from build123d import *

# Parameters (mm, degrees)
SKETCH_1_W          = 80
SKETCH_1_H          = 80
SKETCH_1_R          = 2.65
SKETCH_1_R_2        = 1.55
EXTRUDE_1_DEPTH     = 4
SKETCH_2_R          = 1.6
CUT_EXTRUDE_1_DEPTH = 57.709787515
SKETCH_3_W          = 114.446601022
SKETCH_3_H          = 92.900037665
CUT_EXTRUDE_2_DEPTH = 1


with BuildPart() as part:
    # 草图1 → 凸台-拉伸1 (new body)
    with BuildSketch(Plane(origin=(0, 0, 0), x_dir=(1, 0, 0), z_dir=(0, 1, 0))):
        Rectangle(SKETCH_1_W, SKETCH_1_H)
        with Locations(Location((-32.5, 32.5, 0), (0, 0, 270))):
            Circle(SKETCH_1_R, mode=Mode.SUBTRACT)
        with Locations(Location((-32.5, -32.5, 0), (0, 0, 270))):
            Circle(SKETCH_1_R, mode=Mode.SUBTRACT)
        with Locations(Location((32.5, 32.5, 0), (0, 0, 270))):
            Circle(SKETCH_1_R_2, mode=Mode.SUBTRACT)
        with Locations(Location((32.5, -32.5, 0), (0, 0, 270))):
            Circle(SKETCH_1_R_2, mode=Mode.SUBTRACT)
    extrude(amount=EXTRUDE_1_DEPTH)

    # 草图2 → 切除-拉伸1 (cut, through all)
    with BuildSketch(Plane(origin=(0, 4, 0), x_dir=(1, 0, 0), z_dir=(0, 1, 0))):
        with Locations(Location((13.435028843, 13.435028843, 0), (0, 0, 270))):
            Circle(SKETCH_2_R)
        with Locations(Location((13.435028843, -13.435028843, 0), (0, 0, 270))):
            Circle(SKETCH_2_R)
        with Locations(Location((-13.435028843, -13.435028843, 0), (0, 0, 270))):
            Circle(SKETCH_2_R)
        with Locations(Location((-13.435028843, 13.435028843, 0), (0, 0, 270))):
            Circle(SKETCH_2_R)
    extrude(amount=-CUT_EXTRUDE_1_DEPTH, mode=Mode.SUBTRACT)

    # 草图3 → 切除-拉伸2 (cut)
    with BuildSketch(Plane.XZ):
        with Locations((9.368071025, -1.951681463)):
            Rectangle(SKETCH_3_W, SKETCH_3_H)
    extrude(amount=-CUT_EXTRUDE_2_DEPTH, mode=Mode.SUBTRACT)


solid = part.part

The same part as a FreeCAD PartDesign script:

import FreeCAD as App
import Part
import Sketcher

doc = App.newDocument("Part")
body = doc.addObject("PartDesign::Body", "Body")

sketch1 = body.newObject("Sketcher::SketchObject", "Sketch")
sketch1.AttachmentSupport = (doc.getObject("XZ_Plane"), [""])
sketch1.MapMode = "FlatFace"
sketch1.addGeometry(Part.LineSegment(App.Vector(-40, -40, 0), App.Vector(-40, 40, 0)), False)
sketch1.addGeometry(Part.LineSegment(App.Vector(-40, 40, 0), App.Vector(40, 40, 0)), False)
sketch1.addGeometry(Part.LineSegment(App.Vector(40, 40, 0), App.Vector(40, -40, 0)), False)
sketch1.addGeometry(Part.LineSegment(App.Vector(40, -40, 0), App.Vector(-40, -40, 0)), False)
sketch1.addGeometry(Part.Circle(App.Vector(-32.5, 32.5, 0), App.Vector(0, 0, 1), 2.65), False)
sketch1.addGeometry(Part.Circle(App.Vector(32.5, 32.5, 0), App.Vector(0, 0, 1), 1.55), False)
sketch1.addGeometry(Part.Circle(App.Vector(-32.5, -32.5, 0), App.Vector(0, 0, 1), 2.65), False)
sketch1.addGeometry(Part.Circle(App.Vector(32.5, -32.5, 0), App.Vector(0, 0, 1), 1.55), False)
sketch1.addConstraint(Sketcher.Constraint("Coincident", 0, 2, 1, 1))
sketch1.addConstraint(Sketcher.Constraint("Coincident", 1, 2, 2, 1))
sketch1.addConstraint(Sketcher.Constraint("Coincident", 2, 2, 3, 1))
sketch1.addConstraint(Sketcher.Constraint("Coincident", 3, 2, 0, 1))
sketch1.addConstraint(Sketcher.Constraint("Vertical", 0))
sketch1.addConstraint(Sketcher.Constraint("Horizontal", 1))
sketch1.addConstraint(Sketcher.Constraint("Vertical", 2))
sketch1.addConstraint(Sketcher.Constraint("Horizontal", 3))
sketch1.addConstraint(Sketcher.Constraint("Equal", 4, 6))
sketch1.addConstraint(Sketcher.Constraint("Equal", 5, 7))
sketch1.addConstraint(Sketcher.Constraint("Symmetric", 5, 3, 6, 3, -1, 1))
sketch1.addConstraint(Sketcher.Constraint("Symmetric", 4, 3, 7, 3, -1, 1))
sketch1.addConstraint(Sketcher.Constraint("Symmetric", 0, 2, 2, 2, -1, 1))
sketch1.addConstraint(Sketcher.Constraint("Symmetric", 4, 3, 5, 3, -2))
sketch1.addConstraint(Sketcher.Constraint("Equal", 3, 0))
sketch1.addConstraint(Sketcher.Constraint("Diameter", 4, 5.3))
sketch1.addConstraint(Sketcher.Constraint("Diameter", 5, 3.1))
sketch1.addConstraint(Sketcher.Constraint("DistanceX", 1, 1, 1, 2, 80.0))
sketch1.addConstraint(Sketcher.Constraint("DistanceX", 4, 3, 5, 3, 65.0))
sketch1.addConstraint(Sketcher.Constraint("DistanceY", 6, 3, 4, 3, 65.0))
pad1 = body.newObject("PartDesign::Pad", "Pad")
pad1.Profile = sketch1
pad1.Length = 4
pad1.Reversed = True

sketch2 = body.newObject("Sketcher::SketchObject", "Sketch001")
sketch2.AttachmentSupport = (doc.getObject("XZ_Plane"), [""])
sketch2.MapMode = "FlatFace"
sketch2.AttachmentOffset = App.Placement(App.Vector(0, 0, -4), App.Rotation())
sketch2.addGeometry(Part.Circle(App.Vector(13.435029, -13.435029, 0), App.Vector(0, 0, 1), 1.6), False)
sketch2.addGeometry(Part.Circle(App.Vector(13.435029, 13.435029, 0), App.Vector(0, 0, 1), 1.6), False)
sketch2.addGeometry(Part.Circle(App.Vector(-13.435029, 13.435029, 0), App.Vector(0, 0, 1), 1.6), False)
sketch2.addGeometry(Part.Circle(App.Vector(-13.435029, -13.435029, 0), App.Vector(0, 0, 1), 1.6), False)
sketch2.addConstraint(Sketcher.Constraint("Equal", 0, 1))
sketch2.addConstraint(Sketcher.Constraint("Equal", 1, 2))
sketch2.addConstraint(Sketcher.Constraint("Equal", 2, 3))
sketch2.addConstraint(Sketcher.Constraint("Symmetric", 0, 3, 2, 3, -1, 1))
sketch2.addConstraint(Sketcher.Constraint("Symmetric", 1, 3, 3, 3, -1, 1))
sketch2.addConstraint(Sketcher.Constraint("Symmetric", 1, 3, 2, 3, -2))
sketch2.addConstraint(Sketcher.Constraint("Diameter", 0, 3.2))
sketch2.addConstraint(Sketcher.Constraint("DistanceX", -1, 1, 0, 3, 13.435029))
sketch2.addConstraint(Sketcher.Constraint("DistanceY", 0, 3, -1, 1, 13.435029))
pocket1 = body.newObject("PartDesign::Pocket", "Pocket")
pocket1.Profile = sketch2
pocket1.Type = "ThroughAll"
pocket1.Reversed = True

sketch3 = body.newObject("Sketcher::SketchObject", "Sketch002")
sketch3.AttachmentSupport = (doc.getObject("XZ_Plane"), [""])
sketch3.MapMode = "FlatFace"
sketch3.addGeometry(Part.LineSegment(App.Vector(-47.855229, 44.498337, 0), App.Vector(-47.855229, -48.4017, 0)), False)
sketch3.addGeometry(Part.LineSegment(App.Vector(-47.855229, -48.4017, 0), App.Vector(66.591372, -48.4017, 0)), False)
sketch3.addGeometry(Part.LineSegment(App.Vector(66.591372, -48.4017, 0), App.Vector(66.591372, 44.498337, 0)), False)
sketch3.addGeometry(Part.LineSegment(App.Vector(66.591372, 44.498337, 0), App.Vector(-47.855229, 44.498337, 0)), False)
sketch3.addConstraint(Sketcher.Constraint("Coincident", 0, 2, 1, 1))
sketch3.addConstraint(Sketcher.Constraint("Coincident", 1, 2, 2, 1))
sketch3.addConstraint(Sketcher.Constraint("Coincident", 2, 2, 3, 1))
sketch3.addConstraint(Sketcher.Constraint("Coincident", 3, 2, 0, 1))
sketch3.addConstraint(Sketcher.Constraint("Vertical", 0))
sketch3.addConstraint(Sketcher.Constraint("Horizontal", 1))
sketch3.addConstraint(Sketcher.Constraint("Vertical", 2))
sketch3.addConstraint(Sketcher.Constraint("Horizontal", 3))
sketch3.addConstraint(Sketcher.Constraint("DistanceX", 1, 1, 1, 2, 114.446601))
sketch3.addConstraint(Sketcher.Constraint("DistanceY", 0, 2, -1, 1, 48.4017))
sketch3.addConstraint(Sketcher.Constraint("DistanceY", 0, 2, 0, 1, 92.900038))
sketch3.addConstraint(Sketcher.Constraint("DistanceX", 0, 2, -1, 1, 47.855229))
pocket2 = body.newObject("PartDesign::Pocket", "Pocket001")
pocket2.Profile = sketch3
pocket2.Length = 1

doc.recompute()
